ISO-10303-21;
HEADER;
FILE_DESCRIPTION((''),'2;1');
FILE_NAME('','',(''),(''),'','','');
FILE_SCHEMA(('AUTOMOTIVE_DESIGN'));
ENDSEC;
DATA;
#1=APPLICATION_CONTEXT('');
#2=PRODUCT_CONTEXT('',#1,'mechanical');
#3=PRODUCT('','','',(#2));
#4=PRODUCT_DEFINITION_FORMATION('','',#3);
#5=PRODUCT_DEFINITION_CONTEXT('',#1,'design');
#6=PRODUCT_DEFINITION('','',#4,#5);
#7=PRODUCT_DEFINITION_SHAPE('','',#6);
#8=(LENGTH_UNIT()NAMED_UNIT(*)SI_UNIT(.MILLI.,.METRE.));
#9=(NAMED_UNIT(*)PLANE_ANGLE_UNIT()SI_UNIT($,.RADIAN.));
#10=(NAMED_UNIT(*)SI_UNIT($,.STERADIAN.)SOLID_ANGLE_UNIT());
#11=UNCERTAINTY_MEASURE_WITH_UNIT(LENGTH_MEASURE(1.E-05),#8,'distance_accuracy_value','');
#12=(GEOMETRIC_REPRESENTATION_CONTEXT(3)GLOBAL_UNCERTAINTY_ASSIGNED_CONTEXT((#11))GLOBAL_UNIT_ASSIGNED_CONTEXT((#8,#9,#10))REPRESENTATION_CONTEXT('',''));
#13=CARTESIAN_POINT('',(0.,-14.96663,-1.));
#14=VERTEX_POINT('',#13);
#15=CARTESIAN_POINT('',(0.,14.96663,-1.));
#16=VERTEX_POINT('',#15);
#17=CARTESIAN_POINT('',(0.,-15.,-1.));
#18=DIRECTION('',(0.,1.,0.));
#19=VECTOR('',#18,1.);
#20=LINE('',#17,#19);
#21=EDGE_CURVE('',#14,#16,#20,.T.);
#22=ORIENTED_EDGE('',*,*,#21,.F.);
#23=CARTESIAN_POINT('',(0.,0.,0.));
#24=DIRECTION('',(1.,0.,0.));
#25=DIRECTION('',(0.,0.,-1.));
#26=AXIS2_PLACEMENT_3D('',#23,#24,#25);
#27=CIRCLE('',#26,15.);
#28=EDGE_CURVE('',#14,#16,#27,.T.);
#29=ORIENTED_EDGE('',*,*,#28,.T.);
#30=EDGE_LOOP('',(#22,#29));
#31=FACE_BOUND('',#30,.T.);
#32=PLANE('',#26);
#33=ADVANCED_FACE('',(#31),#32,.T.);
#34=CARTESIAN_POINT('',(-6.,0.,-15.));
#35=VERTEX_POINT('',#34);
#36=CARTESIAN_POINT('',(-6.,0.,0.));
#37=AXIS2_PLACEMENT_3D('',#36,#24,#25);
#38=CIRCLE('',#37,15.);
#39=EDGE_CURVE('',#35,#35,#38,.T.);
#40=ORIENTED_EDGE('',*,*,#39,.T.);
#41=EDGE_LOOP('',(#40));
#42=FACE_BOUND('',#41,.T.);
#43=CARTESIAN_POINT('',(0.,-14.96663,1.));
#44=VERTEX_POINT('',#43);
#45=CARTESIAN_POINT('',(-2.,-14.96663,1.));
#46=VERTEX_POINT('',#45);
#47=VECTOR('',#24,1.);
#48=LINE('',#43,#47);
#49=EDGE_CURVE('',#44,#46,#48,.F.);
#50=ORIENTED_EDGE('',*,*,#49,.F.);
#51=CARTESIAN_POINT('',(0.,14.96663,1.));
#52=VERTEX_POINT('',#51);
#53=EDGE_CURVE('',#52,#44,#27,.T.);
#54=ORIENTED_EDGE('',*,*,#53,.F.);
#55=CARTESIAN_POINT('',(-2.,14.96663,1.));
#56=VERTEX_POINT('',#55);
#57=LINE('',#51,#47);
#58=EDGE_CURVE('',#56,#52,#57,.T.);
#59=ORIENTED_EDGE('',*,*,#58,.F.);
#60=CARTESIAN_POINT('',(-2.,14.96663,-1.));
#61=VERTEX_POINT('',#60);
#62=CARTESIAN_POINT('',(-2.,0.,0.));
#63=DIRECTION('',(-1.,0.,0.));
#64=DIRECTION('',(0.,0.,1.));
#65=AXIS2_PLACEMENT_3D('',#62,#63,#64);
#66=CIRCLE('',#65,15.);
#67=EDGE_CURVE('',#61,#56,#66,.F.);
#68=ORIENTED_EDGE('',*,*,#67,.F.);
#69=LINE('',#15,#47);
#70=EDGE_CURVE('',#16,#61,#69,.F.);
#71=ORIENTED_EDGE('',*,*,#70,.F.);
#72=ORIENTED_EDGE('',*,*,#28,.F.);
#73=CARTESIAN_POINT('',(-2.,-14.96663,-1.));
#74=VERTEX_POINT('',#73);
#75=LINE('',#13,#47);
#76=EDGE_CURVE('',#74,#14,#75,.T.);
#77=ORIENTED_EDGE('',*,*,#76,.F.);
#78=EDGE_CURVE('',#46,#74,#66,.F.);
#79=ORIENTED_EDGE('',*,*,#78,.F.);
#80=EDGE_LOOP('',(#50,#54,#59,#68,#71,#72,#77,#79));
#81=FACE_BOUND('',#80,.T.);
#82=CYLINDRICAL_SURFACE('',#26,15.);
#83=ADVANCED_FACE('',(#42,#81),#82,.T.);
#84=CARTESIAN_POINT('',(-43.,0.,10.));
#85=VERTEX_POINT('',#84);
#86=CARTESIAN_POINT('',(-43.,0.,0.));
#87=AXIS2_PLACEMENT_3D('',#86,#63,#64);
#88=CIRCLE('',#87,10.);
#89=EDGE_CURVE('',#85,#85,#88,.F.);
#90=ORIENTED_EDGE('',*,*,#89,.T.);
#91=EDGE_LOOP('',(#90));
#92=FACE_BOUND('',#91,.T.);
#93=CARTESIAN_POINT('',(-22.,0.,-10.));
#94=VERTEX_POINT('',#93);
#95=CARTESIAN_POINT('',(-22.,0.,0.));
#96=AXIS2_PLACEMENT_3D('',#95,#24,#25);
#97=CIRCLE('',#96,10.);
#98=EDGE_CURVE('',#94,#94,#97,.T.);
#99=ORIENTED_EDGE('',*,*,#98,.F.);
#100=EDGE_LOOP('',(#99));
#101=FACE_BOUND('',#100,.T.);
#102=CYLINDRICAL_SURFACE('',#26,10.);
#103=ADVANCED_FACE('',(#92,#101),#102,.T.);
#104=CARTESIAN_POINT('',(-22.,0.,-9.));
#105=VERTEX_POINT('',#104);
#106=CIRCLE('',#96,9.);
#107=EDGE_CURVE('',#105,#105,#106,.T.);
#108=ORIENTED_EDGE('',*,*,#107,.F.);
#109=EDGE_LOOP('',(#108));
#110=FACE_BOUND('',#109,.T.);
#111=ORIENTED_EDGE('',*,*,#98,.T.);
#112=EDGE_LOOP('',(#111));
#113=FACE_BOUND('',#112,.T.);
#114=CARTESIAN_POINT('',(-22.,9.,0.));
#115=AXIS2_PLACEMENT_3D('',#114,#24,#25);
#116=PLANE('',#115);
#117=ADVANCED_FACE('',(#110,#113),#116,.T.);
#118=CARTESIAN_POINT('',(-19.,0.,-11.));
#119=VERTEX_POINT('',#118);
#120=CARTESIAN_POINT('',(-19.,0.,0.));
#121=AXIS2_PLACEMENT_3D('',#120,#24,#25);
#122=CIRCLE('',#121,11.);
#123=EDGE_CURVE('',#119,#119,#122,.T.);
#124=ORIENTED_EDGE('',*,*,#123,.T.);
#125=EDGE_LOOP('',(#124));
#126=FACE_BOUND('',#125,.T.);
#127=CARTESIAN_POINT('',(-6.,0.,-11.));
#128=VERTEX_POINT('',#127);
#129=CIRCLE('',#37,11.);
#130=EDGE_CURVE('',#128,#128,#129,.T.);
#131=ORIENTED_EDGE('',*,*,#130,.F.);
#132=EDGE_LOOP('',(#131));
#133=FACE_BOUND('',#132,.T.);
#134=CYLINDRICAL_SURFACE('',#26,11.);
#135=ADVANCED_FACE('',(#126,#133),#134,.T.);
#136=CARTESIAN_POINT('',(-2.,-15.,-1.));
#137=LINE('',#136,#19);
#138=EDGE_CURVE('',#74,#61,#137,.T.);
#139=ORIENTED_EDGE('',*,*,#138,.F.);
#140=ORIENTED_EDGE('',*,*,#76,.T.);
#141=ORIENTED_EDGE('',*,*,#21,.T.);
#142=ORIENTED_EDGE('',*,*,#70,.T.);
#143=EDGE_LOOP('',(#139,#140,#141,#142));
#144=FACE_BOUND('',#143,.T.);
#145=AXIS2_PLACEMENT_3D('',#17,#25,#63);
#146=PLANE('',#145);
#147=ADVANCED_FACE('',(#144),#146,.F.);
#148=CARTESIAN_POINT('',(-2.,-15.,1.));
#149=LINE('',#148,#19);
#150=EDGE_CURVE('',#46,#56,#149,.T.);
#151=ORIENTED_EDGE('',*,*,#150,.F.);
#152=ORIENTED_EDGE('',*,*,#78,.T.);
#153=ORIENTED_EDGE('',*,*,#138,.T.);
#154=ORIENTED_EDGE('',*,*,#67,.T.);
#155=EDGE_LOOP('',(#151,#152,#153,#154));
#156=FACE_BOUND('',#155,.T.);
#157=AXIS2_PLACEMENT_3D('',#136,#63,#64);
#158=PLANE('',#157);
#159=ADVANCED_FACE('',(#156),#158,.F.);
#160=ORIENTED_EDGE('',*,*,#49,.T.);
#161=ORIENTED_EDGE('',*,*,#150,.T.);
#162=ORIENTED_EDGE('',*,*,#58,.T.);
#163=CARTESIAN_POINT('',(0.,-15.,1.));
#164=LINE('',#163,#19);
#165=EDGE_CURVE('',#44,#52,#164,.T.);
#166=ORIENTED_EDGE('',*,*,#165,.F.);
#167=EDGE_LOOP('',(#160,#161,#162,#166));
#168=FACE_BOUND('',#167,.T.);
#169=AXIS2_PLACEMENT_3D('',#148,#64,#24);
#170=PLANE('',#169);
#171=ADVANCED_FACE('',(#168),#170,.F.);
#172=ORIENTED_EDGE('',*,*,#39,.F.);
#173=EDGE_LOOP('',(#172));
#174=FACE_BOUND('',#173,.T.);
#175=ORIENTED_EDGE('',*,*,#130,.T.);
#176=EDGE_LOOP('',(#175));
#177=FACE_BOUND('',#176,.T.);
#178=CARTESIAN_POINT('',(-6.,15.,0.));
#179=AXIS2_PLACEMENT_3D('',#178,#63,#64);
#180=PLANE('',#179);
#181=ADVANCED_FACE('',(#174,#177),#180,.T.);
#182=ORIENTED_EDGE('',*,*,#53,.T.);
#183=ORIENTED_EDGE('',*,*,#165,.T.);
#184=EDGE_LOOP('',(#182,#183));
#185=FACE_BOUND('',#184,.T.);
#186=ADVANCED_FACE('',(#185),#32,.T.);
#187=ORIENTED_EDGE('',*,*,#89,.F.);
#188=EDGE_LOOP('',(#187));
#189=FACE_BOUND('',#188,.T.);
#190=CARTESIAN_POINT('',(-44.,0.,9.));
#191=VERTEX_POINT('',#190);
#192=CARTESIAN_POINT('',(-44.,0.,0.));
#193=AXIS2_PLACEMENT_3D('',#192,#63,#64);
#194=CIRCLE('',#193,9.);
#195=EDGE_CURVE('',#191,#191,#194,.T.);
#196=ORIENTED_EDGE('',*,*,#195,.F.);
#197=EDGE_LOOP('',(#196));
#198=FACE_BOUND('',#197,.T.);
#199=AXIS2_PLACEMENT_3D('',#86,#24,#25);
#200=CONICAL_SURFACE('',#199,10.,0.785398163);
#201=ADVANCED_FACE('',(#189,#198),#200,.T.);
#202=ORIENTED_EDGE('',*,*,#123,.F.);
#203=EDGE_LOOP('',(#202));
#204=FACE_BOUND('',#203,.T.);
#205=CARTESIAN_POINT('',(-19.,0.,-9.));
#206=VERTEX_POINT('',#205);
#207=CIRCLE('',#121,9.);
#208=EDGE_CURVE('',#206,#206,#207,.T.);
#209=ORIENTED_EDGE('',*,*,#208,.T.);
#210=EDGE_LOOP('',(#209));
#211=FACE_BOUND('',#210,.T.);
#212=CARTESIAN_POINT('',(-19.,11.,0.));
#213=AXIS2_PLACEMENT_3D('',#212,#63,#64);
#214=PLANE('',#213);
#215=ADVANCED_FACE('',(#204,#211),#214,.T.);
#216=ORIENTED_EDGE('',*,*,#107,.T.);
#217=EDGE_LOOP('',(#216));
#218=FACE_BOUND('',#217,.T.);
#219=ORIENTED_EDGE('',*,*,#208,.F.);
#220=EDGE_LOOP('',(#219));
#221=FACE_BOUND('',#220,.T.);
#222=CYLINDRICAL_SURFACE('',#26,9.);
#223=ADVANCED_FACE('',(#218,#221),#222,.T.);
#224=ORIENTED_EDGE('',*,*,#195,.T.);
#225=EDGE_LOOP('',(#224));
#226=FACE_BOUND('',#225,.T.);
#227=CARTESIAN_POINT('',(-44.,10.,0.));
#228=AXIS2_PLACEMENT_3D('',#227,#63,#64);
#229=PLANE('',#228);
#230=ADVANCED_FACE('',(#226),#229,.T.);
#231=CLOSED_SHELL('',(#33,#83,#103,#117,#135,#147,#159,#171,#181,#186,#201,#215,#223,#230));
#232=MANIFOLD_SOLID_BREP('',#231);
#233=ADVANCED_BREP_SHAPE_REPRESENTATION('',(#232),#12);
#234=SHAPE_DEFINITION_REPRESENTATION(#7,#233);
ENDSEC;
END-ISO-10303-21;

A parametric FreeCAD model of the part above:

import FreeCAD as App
import Part
import Sketcher
from FreeCAD import Vector
Q = App.Units.Quantity


def edges_at(feature, points):
    """Names of the edges that pass closest to the given points."""
    edges = feature.Shape.Edges
    near = lambda p: min(range(len(edges)), key=lambda i: edges[i].distToShape(Part.Vertex(*p))[0])
    return sorted({f"Edge{near(p) + 1}" for p in points})

doc = App.newDocument("Part")
params = doc.addObject("Spreadsheet::Sheet", "Params")
for row, (alias, value) in enumerate([
    ("sketch1_width", "6 mm"),
    ("sketch1_width2", "13 mm"),
    ("sketch1_width3", "3 mm"),
    ("sketch1_width4", "22 mm"),
    ("sketch1_height", "15 mm"),
    ("revolution_angle", "360 deg"),
    ("sketch2_width", "2 mm"),
    ("chamfer_size", "1 mm"),
], start=1):
    params.set(f"A{row}", alias)
    params.set(f"B{row}", "=" + value)
    params.setAlias(f"B{row}", alias)

body = doc.addObject("PartDesign::Body", "Body")

# Sketch on XY plane
sketch1 = body.newObject("Sketcher::SketchObject", "Sketch")
sketch1.AttachmentSupport = (doc.getObject("XY_Plane"), [""])
sketch1.MapMode = "FlatFace"
sketch1.addGeometry(Part.LineSegment(Vector(0, 0, 0), Vector(0, 15, 0)), False)
sketch1.addGeometry(Part.LineSegment(Vector(0, 15, 0), Vector(-6, 15, 0)), False)
sketch1.addGeometry(Part.LineSegment(Vector(-6, 15, 0), Vector(-6, 11, 0)), False)
sketch1.addGeometry(Part.LineSegment(Vector(-6, 11, 0), Vector(-19, 11, 0)), False)
sketch1.addGeometry(Part.LineSegment(Vector(-19, 11, 0), Vector(-19, 9, 0)), False)
sketch1.addGeometry(Part.LineSegment(Vector(-19, 9, 0), Vector(-22, 9, 0)), False)
sketch1.addGeometry(Part.LineSegment(Vector(-22, 9, 0), Vector(-22, 10, 0)), False)
sketch1.addGeometry(Part.LineSegment(Vector(-22, 10, 0), Vector(-44, 10, 0)), False)
sketch1.addGeometry(Part.LineSegment(Vector(-44, 10, 0), Vector(-44, 0, 0)), False)
sketch1.addGeometry(Part.LineSegment(Vector(-44, 0, 0), Vector(0, 0, 0)), False)
sketch1.addConstraint(Sketcher.Constraint("Coincident", 0, 2, 1, 1))
sketch1.addConstraint(Sketcher.Constraint("Coincident", 1, 2, 2, 1))
sketch1.addConstraint(Sketcher.Constraint("Coincident", 2, 2, 3, 1))
sketch1.addConstraint(Sketcher.Constraint("Coincident", 3, 2, 4, 1))
sketch1.addConstraint(Sketcher.Constraint("Coincident", 4, 2, 5, 1))
sketch1.addConstraint(Sketcher.Constraint("Coincident", 5, 2, 6, 1))
sketch1.addConstraint(Sketcher.Constraint("Coincident", 6, 2, 7, 1))
sketch1.addConstraint(Sketcher.Constraint("Coincident", 7, 2, 8, 1))
sketch1.addConstraint(Sketcher.Constraint("Coincident", 8, 2, 9, 1))
sketch1.addConstraint(Sketcher.Constraint("Coincident", 9, 2, 0, 1))
sketch1.addConstraint(Sketcher.Constraint("Vertical", 0))
sketch1.addConstraint(Sketcher.Constraint("Horizontal", 1))
sketch1.addConstraint(Sketcher.Constraint("Vertical", 2))
sketch1.addConstraint(Sketcher.Constraint("Horizontal", 3))
sketch1.addConstraint(Sketcher.Constraint("Vertical", 4))
sketch1.addConstraint(Sketcher.Constraint("Horizontal", 5))
sketch1.addConstraint(Sketcher.Constraint("Vertical", 6))
sketch1.addConstraint(Sketcher.Constraint("Horizontal", 7))
sketch1.addConstraint(Sketcher.Constraint("Vertical", 8))
sketch1.addConstraint(Sketcher.Constraint("Horizontal", 9))
sketch1.addConstraint(Sketcher.Constraint("Coincident", 9, 2, -1, 1))
sketch1.addConstraint(Sketcher.Constraint("DistanceX", 1, 2, 1, 1, Q("6 mm")))
sketch1.addConstraint(Sketcher.Constraint("DistanceX", 3, 2, 3, 1, Q("13 mm")))
sketch1.addConstraint(Sketcher.Constraint("DistanceX", 5, 2, 5, 1, Q("3 mm")))
sketch1.addConstraint(Sketcher.Constraint("DistanceX", 7, 2, 7, 1, Q("22 mm")))
sketch1.addConstraint(Sketcher.Constraint("DistanceY", 0, 1, 0, 2, Q("15 mm")))
sketch1.addConstraint(Sketcher.Constraint("DistanceY", 2, 2, 2, 1, Q("4 mm")))
sketch1.addConstraint(Sketcher.Constraint("DistanceY", 4, 2, 4, 1, Q("2 mm")))
sketch1.addConstraint(Sketcher.Constraint("DistanceY", 6, 1, 6, 2, Q("1 mm")))
sketch1.setExpression("Constraints[21]", "Params.sketch1_width")
sketch1.setExpression("Constraints[22]", "Params.sketch1_width2")
sketch1.setExpression("Constraints[23]", "Params.sketch1_width3")
sketch1.setExpression("Constraints[24]", "Params.sketch1_width4")
sketch1.setExpression("Constraints[25]", "Params.sketch1_height")
revolution = body.newObject("PartDesign::Revolution", "Revolution")
revolution.Profile = sketch1
revolution.ReferenceAxis = (sketch1, ["H_Axis"])
revolution.setExpression("Angle", "Params.revolution_angle")

# Sketch on XZ plane
sketch2 = body.newObject("Sketcher::SketchObject", "Sketch001")
sketch2.AttachmentSupport = (doc.getObject("XZ_Plane"), [""])
sketch2.MapMode = "FlatFace"
sketch2.addGeometry(Part.LineSegment(Vector(0, -1, 0), Vector(-2, -1, 0)), False)
sketch2.addGeometry(Part.LineSegment(Vector(-2, -1, 0), Vector(-2, 1, 0)), False)
sketch2.addGeometry(Part.LineSegment(Vector(-2, 1, 0), Vector(0, 1, 0)), False)
sketch2.addGeometry(Part.LineSegment(Vector(0, 1, 0), Vector(0, -1, 0)), False)
sketch2.addConstraint(Sketcher.Constraint("Coincident", 0, 2, 1, 1))
sketch2.addConstraint(Sketcher.Constraint("Coincident", 1, 2, 2, 1))
sketch2.addConstraint(Sketcher.Constraint("Coincident", 2, 2, 3, 1))
sketch2.addConstraint(Sketcher.Constraint("Coincident", 3, 2, 0, 1))
sketch2.addConstraint(Sketcher.Constraint("Horizontal", 0))
sketch2.addConstraint(Sketcher.Constraint("Vertical", 1))
sketch2.addConstraint(Sketcher.Constraint("Horizontal", 2))
sketch2.addConstraint(Sketcher.Constraint("Vertical", 3))
sketch2.addConstraint(Sketcher.Constraint("Symmetric", 2, 2, 3, 2, -1, 1))
sketch2.addConstraint(Sketcher.Constraint("Equal", 2, 1))
sketch2.addConstraint(Sketcher.Constraint("DistanceX", 0, 2, 0, 1, Q("2 mm")))
sketch2.setExpression("Constraints[10]", "Params.sketch2_width")
pocket1 = body.newObject("PartDesign::Pocket", "Pocket")
pocket1.Profile = sketch2
pocket1.Type = "ThroughAll"
pocket1.Midplane = True
doc.recompute()

chamfer = body.newObject("PartDesign::Chamfer", "Chamfer")
chamfer.Base = (pocket1, edges_at(pocket1, [(-44, 0, 10)]))
chamfer.setExpression("Size", "Params.chamfer_size")

doc.recompute()
